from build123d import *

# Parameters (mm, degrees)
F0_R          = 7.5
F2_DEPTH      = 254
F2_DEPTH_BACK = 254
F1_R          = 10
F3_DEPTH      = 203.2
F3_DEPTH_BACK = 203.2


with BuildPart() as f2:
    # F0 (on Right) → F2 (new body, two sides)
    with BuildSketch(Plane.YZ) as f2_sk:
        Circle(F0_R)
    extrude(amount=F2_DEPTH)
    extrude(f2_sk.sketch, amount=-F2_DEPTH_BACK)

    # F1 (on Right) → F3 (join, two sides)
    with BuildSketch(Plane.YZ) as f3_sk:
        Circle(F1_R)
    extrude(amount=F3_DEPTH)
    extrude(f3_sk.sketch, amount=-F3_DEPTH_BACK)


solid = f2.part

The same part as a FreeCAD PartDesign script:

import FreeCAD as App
import Part
import Sketcher
Q = App.Units.Quantity

doc = App.newDocument("Part")
body = doc.addObject("PartDesign::Body", "Body")

# Sketch on YZ plane
sketch1 = doc.addObject("Sketcher::SketchObject", "Sketch")
body.addObject(sketch1)
sketch1.AttachmentSupport = (doc.YZ_Plane, [""])
sketch1.MapMode = "FlatFace"
sketch1.addGeometry(Part.Circle(App.Vector(0, 0, 0), App.Vector(0, 0, 1), 8), False)
sketch1.addConstraint([
    Sketcher.Constraint("Coincident", 0, 3, -1, 1),
    Sketcher.Constraint("Diameter", 0, Q("15 mm")),
])
pad1 = doc.addObject("PartDesign::Pad", "Pad")
body.addObject(pad1)
pad1.Profile = sketch1
pad1.Type = "TwoLengths"
pad1.Length = 254
pad1.Length2 = 254

# Sketch on YZ plane
sketch2 = doc.addObject("Sketcher::SketchObject", "Sketch001")
body.addObject(sketch2)
sketch2.AttachmentSupport = (doc.YZ_Plane, [""])
sketch2.MapMode = "FlatFace"
sketch2.addGeometry(Part.Circle(App.Vector(0, 0, 0), App.Vector(0, 0, 1), 10), False)
sketch2.addConstraint([
    Sketcher.Constraint("Coincident", 0, 3, -1, 1),
    Sketcher.Constraint("Diameter", 0, Q("20 mm")),
])
pad2 = doc.addObject("PartDesign::Pad", "Pad001")
body.addObject(pad2)
pad2.Profile = sketch2
pad2.Type = "TwoLengths"
pad2.Length = 203.2
pad2.Length2 = 203.2

doc.recompute()
